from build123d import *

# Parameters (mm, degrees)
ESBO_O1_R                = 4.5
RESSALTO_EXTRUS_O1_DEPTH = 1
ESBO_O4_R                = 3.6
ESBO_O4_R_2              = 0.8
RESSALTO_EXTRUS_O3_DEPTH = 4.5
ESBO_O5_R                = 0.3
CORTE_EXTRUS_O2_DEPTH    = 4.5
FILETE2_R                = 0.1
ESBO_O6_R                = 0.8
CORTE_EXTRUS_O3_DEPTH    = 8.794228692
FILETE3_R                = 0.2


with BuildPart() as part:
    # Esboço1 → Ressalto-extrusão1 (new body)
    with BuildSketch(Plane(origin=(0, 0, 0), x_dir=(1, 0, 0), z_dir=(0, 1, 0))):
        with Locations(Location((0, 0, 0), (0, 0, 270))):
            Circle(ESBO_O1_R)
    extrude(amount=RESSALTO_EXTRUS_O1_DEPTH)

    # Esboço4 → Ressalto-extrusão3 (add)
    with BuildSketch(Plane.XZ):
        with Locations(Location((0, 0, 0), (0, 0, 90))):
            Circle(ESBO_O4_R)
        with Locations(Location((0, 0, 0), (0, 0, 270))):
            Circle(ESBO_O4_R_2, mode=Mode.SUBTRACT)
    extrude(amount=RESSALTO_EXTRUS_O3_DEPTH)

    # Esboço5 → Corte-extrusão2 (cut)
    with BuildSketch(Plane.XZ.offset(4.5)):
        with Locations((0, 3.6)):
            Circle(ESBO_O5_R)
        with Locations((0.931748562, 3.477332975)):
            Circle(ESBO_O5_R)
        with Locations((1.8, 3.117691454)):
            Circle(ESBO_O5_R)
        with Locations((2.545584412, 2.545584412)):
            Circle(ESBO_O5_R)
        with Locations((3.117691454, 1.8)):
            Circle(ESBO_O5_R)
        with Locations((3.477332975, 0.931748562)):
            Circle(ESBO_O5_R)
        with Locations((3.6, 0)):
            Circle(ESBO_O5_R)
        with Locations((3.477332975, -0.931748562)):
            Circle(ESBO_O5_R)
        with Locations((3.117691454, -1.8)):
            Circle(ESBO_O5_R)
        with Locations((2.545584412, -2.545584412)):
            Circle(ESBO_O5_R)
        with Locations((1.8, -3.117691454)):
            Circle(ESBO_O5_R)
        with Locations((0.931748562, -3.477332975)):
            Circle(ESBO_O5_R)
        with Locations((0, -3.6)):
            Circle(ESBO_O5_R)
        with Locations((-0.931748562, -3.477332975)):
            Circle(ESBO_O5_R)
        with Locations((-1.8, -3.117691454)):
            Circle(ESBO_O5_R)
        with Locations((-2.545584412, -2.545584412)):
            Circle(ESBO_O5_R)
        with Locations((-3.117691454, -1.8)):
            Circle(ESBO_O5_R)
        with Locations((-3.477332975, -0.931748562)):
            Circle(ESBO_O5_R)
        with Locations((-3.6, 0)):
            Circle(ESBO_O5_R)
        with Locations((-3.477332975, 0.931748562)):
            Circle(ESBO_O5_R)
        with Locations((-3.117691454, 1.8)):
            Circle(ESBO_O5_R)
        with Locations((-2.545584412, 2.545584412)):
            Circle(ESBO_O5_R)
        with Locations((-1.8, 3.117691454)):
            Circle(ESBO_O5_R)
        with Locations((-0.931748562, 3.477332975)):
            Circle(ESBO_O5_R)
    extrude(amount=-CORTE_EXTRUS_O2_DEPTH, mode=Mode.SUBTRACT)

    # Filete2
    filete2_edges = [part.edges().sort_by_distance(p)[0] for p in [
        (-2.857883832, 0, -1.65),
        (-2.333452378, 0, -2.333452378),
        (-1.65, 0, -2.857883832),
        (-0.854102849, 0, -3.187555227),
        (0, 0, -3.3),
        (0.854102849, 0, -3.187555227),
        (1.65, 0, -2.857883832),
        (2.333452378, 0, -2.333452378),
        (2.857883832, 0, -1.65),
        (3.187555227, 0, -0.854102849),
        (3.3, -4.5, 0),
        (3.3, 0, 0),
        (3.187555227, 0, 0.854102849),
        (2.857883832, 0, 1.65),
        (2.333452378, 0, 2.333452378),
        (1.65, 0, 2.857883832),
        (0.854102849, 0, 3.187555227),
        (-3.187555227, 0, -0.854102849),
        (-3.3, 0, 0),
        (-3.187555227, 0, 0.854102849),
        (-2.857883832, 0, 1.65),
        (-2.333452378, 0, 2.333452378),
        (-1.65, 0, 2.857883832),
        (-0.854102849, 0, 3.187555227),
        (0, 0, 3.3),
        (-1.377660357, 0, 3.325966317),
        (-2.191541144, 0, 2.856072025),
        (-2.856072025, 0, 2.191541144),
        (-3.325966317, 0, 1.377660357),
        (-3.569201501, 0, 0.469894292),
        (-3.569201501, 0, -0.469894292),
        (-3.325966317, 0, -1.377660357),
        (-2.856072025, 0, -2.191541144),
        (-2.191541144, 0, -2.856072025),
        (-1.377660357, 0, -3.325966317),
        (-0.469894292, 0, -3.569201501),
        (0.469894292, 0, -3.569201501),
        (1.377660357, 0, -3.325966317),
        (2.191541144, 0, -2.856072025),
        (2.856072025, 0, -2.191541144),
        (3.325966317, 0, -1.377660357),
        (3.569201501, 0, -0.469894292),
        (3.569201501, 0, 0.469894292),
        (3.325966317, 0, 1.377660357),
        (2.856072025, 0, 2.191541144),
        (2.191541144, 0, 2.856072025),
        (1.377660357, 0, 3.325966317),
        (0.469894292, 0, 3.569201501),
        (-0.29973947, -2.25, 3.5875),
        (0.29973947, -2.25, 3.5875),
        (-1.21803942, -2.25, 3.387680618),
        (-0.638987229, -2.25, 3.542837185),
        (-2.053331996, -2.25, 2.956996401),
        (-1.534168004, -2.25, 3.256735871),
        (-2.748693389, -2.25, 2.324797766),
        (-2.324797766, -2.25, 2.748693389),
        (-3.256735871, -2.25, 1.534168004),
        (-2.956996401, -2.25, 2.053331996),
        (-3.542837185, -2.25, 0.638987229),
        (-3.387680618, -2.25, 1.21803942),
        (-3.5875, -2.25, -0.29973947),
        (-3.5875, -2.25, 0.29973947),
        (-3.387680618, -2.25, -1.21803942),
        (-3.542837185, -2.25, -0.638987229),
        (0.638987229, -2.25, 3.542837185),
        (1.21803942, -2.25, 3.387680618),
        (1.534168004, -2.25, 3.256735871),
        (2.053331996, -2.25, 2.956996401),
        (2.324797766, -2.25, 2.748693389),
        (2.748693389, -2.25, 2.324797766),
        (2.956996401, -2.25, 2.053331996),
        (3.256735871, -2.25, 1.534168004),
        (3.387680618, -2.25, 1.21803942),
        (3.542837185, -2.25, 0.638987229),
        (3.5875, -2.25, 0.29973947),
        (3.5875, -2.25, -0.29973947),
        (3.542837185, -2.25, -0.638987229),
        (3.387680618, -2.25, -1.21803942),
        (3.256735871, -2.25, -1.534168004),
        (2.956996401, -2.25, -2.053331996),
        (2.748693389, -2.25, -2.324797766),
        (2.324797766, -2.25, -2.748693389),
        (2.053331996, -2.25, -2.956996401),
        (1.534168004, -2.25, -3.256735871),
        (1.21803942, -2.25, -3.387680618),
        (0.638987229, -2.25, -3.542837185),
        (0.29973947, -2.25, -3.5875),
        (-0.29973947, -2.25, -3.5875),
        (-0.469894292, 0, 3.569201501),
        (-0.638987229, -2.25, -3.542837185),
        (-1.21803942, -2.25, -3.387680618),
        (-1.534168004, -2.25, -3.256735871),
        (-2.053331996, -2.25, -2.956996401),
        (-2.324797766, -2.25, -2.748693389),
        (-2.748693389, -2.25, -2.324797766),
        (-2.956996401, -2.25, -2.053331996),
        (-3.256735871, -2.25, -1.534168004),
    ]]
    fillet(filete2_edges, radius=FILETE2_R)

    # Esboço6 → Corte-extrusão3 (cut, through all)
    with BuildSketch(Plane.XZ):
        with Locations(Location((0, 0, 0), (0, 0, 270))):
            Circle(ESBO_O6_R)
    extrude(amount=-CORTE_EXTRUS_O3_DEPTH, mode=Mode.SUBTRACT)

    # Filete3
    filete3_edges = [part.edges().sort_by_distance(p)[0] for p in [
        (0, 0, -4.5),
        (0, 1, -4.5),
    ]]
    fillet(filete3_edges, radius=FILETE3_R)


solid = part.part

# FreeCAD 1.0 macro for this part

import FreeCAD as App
import Part
import Sketcher

V = App.Vector


def edges_at(feature, points):
    """Names of the edges that pass closest to the given points."""
    edges = feature.Shape.Edges
    near = lambda p: min(range(len(edges)), key=lambda i: edges[i].distToShape(Part.Vertex(*p))[0])
    return sorted({f"Edge{near(p) + 1}" for p in points})

doc = App.newDocument("Part")
body = doc.addObject("PartDesign::Body", "Body")

# Sketch on XZ plane
sketch1 = body.newObject("Sketcher::SketchObject", "Sketch")
sketch1.AttachmentSupport = (doc.getObject("XZ_Plane"), [""])
sketch1.MapMode = "FlatFace"
sketch1.addGeometry(Part.Circle(V(0, 0, 0), V(0, 0, 1), 4.5), False)
sketch1.addConstraint([
    Sketcher.Constraint("Coincident", 0, 3, -1, 1),
    Sketcher.Constraint("Diameter", 0, 9.0),
])
pad1 = body.newObject("PartDesign::Pad", "Pad")
pad1.Profile = sketch1
pad1.Length = 1
pad1.Reversed = True

# Sketch on XZ plane
sketch2 = body.newObject("Sketcher::SketchObject", "Sketch001")
sketch2.AttachmentSupport = (doc.getObject("XZ_Plane"), [""])
sketch2.MapMode = "FlatFace"
sketch2.addGeometry([
    Part.Circle(V(0, 0, 0), V(0, 0, 1), 3.6),
    Part.Circle(V(0, 0, 0), V(0, 0, 1), 0.8),
], False)
sketch2.addConstraint([
    Sketcher.Constraint("Coincident", 0, 3, -1, 1),
    Sketcher.Constraint("Coincident", 1, 3, -1, 1),
    Sketcher.Constraint("Diameter", 0, 7.2),
    Sketcher.Constraint("Diameter", 1, 1.6),
])
pad2 = body.newObject("PartDesign::Pad", "Pad001")
pad2.Profile = sketch2
pad2.Length = 4.5

# Sketch on XZ plane
sketch3 = body.newObject("Sketcher::SketchObject", "Sketch002")
sketch3.AttachmentSupport = (doc.getObject("XZ_Plane"), [""])
sketch3.MapMode = "FlatFace"
sketch3.AttachmentOffset = App.Placement(V(0, 0, 4.5), App.Rotation())
sketch3.addGeometry([
    Part.Circle(V(0, 3.6, 0), V(0, 0, 1), 0.3),  # 0
    Part.Circle(V(0.93, 3.48, 0), V(0, 0, 1), 0.3),  # 1
    Part.Circle(V(1.8, 3.12, 0), V(0, 0, 1), 0.3),  # 2
    Part.Circle(V(2.55, 2.55, 0), V(0, 0, 1), 0.3),  # 3
    Part.Circle(V(3.12, 1.8, 0), V(0, 0, 1), 0.3),  # 4
    Part.Circle(V(3.48, 0.93, 0), V(0, 0, 1), 0.3),  # 5
    Part.Circle(V(3.6, 0, 0), V(0, 0, 1), 0.3),  # 6
    Part.Circle(V(3.48, -0.93, 0), V(0, 0, 1), 0.3),  # 7
    Part.Circle(V(3.12, -1.8, 0), V(0, 0, 1), 0.3),  # 8
    Part.Circle(V(2.55, -2.55, 0), V(0, 0, 1), 0.3),  # 9
    Part.Circle(V(1.8, -3.12, 0), V(0, 0, 1), 0.3),  # 10
    Part.Circle(V(0.93, -3.48, 0), V(0, 0, 1), 0.3),  # 11
    Part.Circle(V(0, -3.6, 0), V(0, 0, 1), 0.3),  # 12
    Part.Circle(V(-0.93, -3.48, 0), V(0, 0, 1), 0.3),  # 13
    Part.Circle(V(-1.8, -3.12, 0), V(0, 0, 1), 0.3),  # 14
    Part.Circle(V(-2.55, -2.55, 0), V(0, 0, 1), 0.3),  # 15
    Part.Circle(V(-3.12, -1.8, 0), V(0, 0, 1), 0.3),  # 16
    Part.Circle(V(-3.48, -0.93, 0), V(0, 0, 1), 0.3),  # 17
    Part.Circle(V(-3.6, 0, 0), V(0, 0, 1), 0.3),  # 18
    Part.Circle(V(-3.48, 0.93, 0), V(0, 0, 1), 0.3),  # 19
    Part.Circle(V(-3.12, 1.8, 0), V(0, 0, 1), 0.3),  # 20
    Part.Circle(V(-2.55, 2.55, 0), V(0, 0, 1), 0.3),  # 21
    Part.Circle(V(-1.8, 3.12, 0), V(0, 0, 1), 0.3),  # 22
    Part.Circle(V(-0.93, 3.48, 0), V(0, 0, 1), 0.3),  # 23
], False)
sketch3.addConstraint([
    Sketcher.Constraint("Equal", 0, 1),
    Sketcher.Constraint("Equal", 1, 2),
    Sketcher.Constraint("Equal", 2, 3),
    Sketcher.Constraint("Equal", 3, 4),
    Sketcher.Constraint("Equal", 4, 5),
    Sketcher.Constraint("Equal", 5, 6),
    Sketcher.Constraint("Equal", 6, 7),
    Sketcher.Constraint("Equal", 7, 8),
    Sketcher.Constraint("Equal", 8, 9),
    Sketcher.Constraint("Equal", 9, 10),
    Sketcher.Constraint("Equal", 10, 11),
    Sketcher.Constraint("Equal", 11, 12),
    Sketcher.Constraint("Equal", 12, 13),
    Sketcher.Constraint("Equal", 13, 14),
    Sketcher.Constraint("Equal", 14, 15),
    Sketcher.Constraint("Equal", 15, 16),
    Sketcher.Constraint("Equal", 16, 17),
    Sketcher.Constraint("Equal", 17, 18),
    Sketcher.Constraint("Equal", 18, 19),
    Sketcher.Constraint("Equal", 19, 20),
    Sketcher.Constraint("Equal", 20, 21),
    Sketcher.Constraint("Equal", 21, 22),
    Sketcher.Constraint("Equal", 22, 23),
    Sketcher.Constraint("Symmetric", 0, 3, 12, 3, -1, 1),
    Sketcher.Constraint("Symmetric", 1, 3, 13, 3, -1, 1),
    Sketcher.Constraint("Symmetric", 2, 3, 14, 3, -1, 1),
    Sketcher.Constraint("Symmetric", 3, 3, 15, 3, -1, 1),
    Sketcher.Constraint("Symmetric", 4, 3, 16, 3, -1, 1),
    Sketcher.Constraint("Symmetric", 5, 3, 17, 3, -1, 1),
    Sketcher.Constraint("Symmetric", 6, 3, 18, 3, -1, 1),
    Sketcher.Constraint("Symmetric", 7, 3, 19, 3, -1, 1),
    Sketcher.Constraint("Symmetric", 8, 3, 20, 3, -1, 1),
    Sketcher.Constraint("Symmetric", 9, 3, 21, 3, -1, 1),
    Sketcher.Constraint("Symmetric", 10, 3, 22, 3, -1, 1),
    Sketcher.Constraint("Symmetric", 11, 3, 23, 3, -1, 1),
    Sketcher.Constraint("Symmetric", 11, 3, 13, 3, -2),
    Sketcher.Constraint("Symmetric", 10, 3, 14, 3, -2),
    Sketcher.Constraint("Symmetric", 9, 3, 15, 3, -2),
    Sketcher.Constraint("Symmetric", 8, 3, 16, 3, -2),
    Sketcher.Constraint("Symmetric", 7, 3, 17, 3, -2),
    Sketcher.Constraint("PointOnObject", 0, 3, -2),
    Sketcher.Constraint("PointOnObject", 6, 3, -1),
    Sketcher.Constraint("Diameter", 0, 0.6),
    Sketcher.Constraint("DistanceY", -1, 1, 0, 3, 3.6),
    Sketcher.Constraint("DistanceX", -1, 1, 2, 3, 1.8),
    Sketcher.Constraint("DistanceY", -1, 1, 4, 3, 1.8),
    Sketcher.Constraint("DistanceX", -1, 1, 6, 3, 3.6),
    Sketcher.Constraint("DistanceX", -1, 1, 1, 3, 0.931749),
    Sketcher.Constraint("DistanceY", -1, 1, 2, 3, 3.117691),
    Sketcher.Constraint("DistanceX", -1, 1, 4, 3, 3.117691),
    Sketcher.Constraint("DistanceY", -1, 1, 5, 3, 0.931749),
    Sketcher.Constraint("DistanceY", 2, 3, 1, 3, 0.359642),
    Sketcher.Constraint("DistanceY", 3, 3, 1, 3, 0.931749),
    Sketcher.Constraint("DistanceX", 4, 3, 5, 3, 0.359642),
    Sketcher.Constraint("DistanceX", 3, 3, 5, 3, 0.931749),
])
pocket1 = body.newObject("PartDesign::Pocket", "Pocket")
pocket1.Profile = sketch3
pocket1.Length = 4.5
doc.recompute()

fillet = body.newObject("PartDesign::Fillet", "Fillet")
fillet.Base = (pocket1, edges_at(pocket1, [
    (-2.858, 0, -1.65),
    (-2.333, 0, -2.333),
    (-1.65, 0, -2.858),
    (-0.854, 0, -3.188),
    (0, 0, -3.3),
    (0.854, 0, -3.188),
    (1.65, 0, -2.858),
    (2.333, 0, -2.333),
    (2.858, 0, -1.65),
    (3.188, 0, -0.854),
    (3.3, -4.5, 0),
    (3.3, 0, 0),
    (3.188, 0, 0.854),
    (2.858, 0, 1.65),
    (2.333, 0, 2.333),
    (1.65, 0, 2.858),
    (0.854, 0, 3.188),
    (-3.188, 0, -0.854),
    (-3.3, 0, 0),
    (-3.188, 0, 0.854),
    (-2.858, 0, 1.65),
    (-2.333, 0, 2.333),
    (-1.65, 0, 2.858),
    (-0.854, 0, 3.188),
    (0, 0, 3.3),
    (-1.378, 0, 3.326),
    (-2.192, 0, 2.856),
    (-2.856, 0, 2.192),
    (-3.326, 0, 1.378),
    (-3.569, 0, 0.47),
    (-3.569, 0, -0.47),
    (-3.326, 0, -1.378),
    (-2.856, 0, -2.192),
    (-2.192, 0, -2.856),
    (-1.378, 0, -3.326),
    (-0.47, 0, -3.569),
    (0.47, 0, -3.569),
    (1.378, 0, -3.326),
    (2.192, 0, -2.856),
    (2.856, 0, -2.192),
    (3.326, 0, -1.378),
    (3.569, 0, -0.47),
    (3.569, 0, 0.47),
    (3.326, 0, 1.378),
    (2.856, 0, 2.192),
    (2.192, 0, 2.856),
    (1.378, 0, 3.326),
    (0.47, 0, 3.569),
    (-0.3, -2.25, 3.587),
    (0.3, -2.25, 3.587),
    (-1.218, -2.25, 3.388),
    (-0.639, -2.25, 3.543),
    (-2.053, -2.25, 2.957),
    (-1.534, -2.25, 3.257),
    (-2.749, -2.25, 2.325),
    (-2.325, -2.25, 2.749),
    (-3.257, -2.25, 1.534),
    (-2.957, -2.25, 2.053),
    (-3.543, -2.25, 0.639),
    (-3.388, -2.25, 1.218),
    (-3.587, -2.25, -0.3),
    (-3.587, -2.25, 0.3),
    (-3.388, -2.25, -1.218),
    (-3.543, -2.25, -0.639),
    (0.639, -2.25, 3.543),
    (1.218, -2.25, 3.388),
    (1.534, -2.25, 3.257),
    (2.053, -2.25, 2.957),
    (2.325, -2.25, 2.749),
    (2.749, -2.25, 2.325),
    (2.957, -2.25, 2.053),
    (3.257, -2.25, 1.534),
    (3.388, -2.25, 1.218),
    (3.543, -2.25, 0.639),
    (3.587, -2.25, 0.3),
    (3.587, -2.25, -0.3),
    (3.543, -2.25, -0.639),
    (3.388, -2.25, -1.218),
    (3.257, -2.25, -1.534),
    (2.957, -2.25, -2.053),
    (2.749, -2.25, -2.325),
    (2.325, -2.25, -2.749),
    (2.053, -2.25, -2.957),
    (1.534, -2.25, -3.257),
    (1.218, -2.25, -3.388),
    (0.639, -2.25, -3.543),
    (0.3, -2.25, -3.587),
    (-0.3, -2.25, -3.587),
    (-0.47, 0, 3.569),
    (-0.639, -2.25, -3.543),
    (-1.218, -2.25, -3.388),
    (-1.534, -2.25, -3.257),
    (-2.053, -2.25, -2.957),
    (-2.325, -2.25, -2.749),
    (-2.749, -2.25, -2.325),
    (-2.957, -2.25, -2.053),
    (-3.257, -2.25, -1.534),
]))
fillet.Radius = 0.1

# Sketch on XZ plane
sketch4 = body.newObject("Sketcher::SketchObject", "Sketch003")
sketch4.AttachmentSupport = (doc.getObject("XZ_Plane"), [""])
sketch4.MapMode = "FlatFace"
sketch4.addGeometry(Part.Circle(V(0, 0, 0), V(0, 0, 1), 0.8), False)
sketch4.addConstraint([
    Sketcher.Constraint("Coincident", 0, 3, -1, 1),
    Sketcher.Constraint("Diameter", 0, 1.6),
])
pocket2 = body.newObject("PartDesign::Pocket", "Pocket001")
pocket2.Profile = sketch4
pocket2.Type = "ThroughAll"
doc.recompute()

fillet2 = body.newObject("PartDesign::Fillet", "Fillet001")
fillet2.Base = (pocket2, edges_at(pocket2, [(0, 0, -4.5), (0, 1, -4.5)]))
fillet2.Radius = 0.2

doc.recompute()
